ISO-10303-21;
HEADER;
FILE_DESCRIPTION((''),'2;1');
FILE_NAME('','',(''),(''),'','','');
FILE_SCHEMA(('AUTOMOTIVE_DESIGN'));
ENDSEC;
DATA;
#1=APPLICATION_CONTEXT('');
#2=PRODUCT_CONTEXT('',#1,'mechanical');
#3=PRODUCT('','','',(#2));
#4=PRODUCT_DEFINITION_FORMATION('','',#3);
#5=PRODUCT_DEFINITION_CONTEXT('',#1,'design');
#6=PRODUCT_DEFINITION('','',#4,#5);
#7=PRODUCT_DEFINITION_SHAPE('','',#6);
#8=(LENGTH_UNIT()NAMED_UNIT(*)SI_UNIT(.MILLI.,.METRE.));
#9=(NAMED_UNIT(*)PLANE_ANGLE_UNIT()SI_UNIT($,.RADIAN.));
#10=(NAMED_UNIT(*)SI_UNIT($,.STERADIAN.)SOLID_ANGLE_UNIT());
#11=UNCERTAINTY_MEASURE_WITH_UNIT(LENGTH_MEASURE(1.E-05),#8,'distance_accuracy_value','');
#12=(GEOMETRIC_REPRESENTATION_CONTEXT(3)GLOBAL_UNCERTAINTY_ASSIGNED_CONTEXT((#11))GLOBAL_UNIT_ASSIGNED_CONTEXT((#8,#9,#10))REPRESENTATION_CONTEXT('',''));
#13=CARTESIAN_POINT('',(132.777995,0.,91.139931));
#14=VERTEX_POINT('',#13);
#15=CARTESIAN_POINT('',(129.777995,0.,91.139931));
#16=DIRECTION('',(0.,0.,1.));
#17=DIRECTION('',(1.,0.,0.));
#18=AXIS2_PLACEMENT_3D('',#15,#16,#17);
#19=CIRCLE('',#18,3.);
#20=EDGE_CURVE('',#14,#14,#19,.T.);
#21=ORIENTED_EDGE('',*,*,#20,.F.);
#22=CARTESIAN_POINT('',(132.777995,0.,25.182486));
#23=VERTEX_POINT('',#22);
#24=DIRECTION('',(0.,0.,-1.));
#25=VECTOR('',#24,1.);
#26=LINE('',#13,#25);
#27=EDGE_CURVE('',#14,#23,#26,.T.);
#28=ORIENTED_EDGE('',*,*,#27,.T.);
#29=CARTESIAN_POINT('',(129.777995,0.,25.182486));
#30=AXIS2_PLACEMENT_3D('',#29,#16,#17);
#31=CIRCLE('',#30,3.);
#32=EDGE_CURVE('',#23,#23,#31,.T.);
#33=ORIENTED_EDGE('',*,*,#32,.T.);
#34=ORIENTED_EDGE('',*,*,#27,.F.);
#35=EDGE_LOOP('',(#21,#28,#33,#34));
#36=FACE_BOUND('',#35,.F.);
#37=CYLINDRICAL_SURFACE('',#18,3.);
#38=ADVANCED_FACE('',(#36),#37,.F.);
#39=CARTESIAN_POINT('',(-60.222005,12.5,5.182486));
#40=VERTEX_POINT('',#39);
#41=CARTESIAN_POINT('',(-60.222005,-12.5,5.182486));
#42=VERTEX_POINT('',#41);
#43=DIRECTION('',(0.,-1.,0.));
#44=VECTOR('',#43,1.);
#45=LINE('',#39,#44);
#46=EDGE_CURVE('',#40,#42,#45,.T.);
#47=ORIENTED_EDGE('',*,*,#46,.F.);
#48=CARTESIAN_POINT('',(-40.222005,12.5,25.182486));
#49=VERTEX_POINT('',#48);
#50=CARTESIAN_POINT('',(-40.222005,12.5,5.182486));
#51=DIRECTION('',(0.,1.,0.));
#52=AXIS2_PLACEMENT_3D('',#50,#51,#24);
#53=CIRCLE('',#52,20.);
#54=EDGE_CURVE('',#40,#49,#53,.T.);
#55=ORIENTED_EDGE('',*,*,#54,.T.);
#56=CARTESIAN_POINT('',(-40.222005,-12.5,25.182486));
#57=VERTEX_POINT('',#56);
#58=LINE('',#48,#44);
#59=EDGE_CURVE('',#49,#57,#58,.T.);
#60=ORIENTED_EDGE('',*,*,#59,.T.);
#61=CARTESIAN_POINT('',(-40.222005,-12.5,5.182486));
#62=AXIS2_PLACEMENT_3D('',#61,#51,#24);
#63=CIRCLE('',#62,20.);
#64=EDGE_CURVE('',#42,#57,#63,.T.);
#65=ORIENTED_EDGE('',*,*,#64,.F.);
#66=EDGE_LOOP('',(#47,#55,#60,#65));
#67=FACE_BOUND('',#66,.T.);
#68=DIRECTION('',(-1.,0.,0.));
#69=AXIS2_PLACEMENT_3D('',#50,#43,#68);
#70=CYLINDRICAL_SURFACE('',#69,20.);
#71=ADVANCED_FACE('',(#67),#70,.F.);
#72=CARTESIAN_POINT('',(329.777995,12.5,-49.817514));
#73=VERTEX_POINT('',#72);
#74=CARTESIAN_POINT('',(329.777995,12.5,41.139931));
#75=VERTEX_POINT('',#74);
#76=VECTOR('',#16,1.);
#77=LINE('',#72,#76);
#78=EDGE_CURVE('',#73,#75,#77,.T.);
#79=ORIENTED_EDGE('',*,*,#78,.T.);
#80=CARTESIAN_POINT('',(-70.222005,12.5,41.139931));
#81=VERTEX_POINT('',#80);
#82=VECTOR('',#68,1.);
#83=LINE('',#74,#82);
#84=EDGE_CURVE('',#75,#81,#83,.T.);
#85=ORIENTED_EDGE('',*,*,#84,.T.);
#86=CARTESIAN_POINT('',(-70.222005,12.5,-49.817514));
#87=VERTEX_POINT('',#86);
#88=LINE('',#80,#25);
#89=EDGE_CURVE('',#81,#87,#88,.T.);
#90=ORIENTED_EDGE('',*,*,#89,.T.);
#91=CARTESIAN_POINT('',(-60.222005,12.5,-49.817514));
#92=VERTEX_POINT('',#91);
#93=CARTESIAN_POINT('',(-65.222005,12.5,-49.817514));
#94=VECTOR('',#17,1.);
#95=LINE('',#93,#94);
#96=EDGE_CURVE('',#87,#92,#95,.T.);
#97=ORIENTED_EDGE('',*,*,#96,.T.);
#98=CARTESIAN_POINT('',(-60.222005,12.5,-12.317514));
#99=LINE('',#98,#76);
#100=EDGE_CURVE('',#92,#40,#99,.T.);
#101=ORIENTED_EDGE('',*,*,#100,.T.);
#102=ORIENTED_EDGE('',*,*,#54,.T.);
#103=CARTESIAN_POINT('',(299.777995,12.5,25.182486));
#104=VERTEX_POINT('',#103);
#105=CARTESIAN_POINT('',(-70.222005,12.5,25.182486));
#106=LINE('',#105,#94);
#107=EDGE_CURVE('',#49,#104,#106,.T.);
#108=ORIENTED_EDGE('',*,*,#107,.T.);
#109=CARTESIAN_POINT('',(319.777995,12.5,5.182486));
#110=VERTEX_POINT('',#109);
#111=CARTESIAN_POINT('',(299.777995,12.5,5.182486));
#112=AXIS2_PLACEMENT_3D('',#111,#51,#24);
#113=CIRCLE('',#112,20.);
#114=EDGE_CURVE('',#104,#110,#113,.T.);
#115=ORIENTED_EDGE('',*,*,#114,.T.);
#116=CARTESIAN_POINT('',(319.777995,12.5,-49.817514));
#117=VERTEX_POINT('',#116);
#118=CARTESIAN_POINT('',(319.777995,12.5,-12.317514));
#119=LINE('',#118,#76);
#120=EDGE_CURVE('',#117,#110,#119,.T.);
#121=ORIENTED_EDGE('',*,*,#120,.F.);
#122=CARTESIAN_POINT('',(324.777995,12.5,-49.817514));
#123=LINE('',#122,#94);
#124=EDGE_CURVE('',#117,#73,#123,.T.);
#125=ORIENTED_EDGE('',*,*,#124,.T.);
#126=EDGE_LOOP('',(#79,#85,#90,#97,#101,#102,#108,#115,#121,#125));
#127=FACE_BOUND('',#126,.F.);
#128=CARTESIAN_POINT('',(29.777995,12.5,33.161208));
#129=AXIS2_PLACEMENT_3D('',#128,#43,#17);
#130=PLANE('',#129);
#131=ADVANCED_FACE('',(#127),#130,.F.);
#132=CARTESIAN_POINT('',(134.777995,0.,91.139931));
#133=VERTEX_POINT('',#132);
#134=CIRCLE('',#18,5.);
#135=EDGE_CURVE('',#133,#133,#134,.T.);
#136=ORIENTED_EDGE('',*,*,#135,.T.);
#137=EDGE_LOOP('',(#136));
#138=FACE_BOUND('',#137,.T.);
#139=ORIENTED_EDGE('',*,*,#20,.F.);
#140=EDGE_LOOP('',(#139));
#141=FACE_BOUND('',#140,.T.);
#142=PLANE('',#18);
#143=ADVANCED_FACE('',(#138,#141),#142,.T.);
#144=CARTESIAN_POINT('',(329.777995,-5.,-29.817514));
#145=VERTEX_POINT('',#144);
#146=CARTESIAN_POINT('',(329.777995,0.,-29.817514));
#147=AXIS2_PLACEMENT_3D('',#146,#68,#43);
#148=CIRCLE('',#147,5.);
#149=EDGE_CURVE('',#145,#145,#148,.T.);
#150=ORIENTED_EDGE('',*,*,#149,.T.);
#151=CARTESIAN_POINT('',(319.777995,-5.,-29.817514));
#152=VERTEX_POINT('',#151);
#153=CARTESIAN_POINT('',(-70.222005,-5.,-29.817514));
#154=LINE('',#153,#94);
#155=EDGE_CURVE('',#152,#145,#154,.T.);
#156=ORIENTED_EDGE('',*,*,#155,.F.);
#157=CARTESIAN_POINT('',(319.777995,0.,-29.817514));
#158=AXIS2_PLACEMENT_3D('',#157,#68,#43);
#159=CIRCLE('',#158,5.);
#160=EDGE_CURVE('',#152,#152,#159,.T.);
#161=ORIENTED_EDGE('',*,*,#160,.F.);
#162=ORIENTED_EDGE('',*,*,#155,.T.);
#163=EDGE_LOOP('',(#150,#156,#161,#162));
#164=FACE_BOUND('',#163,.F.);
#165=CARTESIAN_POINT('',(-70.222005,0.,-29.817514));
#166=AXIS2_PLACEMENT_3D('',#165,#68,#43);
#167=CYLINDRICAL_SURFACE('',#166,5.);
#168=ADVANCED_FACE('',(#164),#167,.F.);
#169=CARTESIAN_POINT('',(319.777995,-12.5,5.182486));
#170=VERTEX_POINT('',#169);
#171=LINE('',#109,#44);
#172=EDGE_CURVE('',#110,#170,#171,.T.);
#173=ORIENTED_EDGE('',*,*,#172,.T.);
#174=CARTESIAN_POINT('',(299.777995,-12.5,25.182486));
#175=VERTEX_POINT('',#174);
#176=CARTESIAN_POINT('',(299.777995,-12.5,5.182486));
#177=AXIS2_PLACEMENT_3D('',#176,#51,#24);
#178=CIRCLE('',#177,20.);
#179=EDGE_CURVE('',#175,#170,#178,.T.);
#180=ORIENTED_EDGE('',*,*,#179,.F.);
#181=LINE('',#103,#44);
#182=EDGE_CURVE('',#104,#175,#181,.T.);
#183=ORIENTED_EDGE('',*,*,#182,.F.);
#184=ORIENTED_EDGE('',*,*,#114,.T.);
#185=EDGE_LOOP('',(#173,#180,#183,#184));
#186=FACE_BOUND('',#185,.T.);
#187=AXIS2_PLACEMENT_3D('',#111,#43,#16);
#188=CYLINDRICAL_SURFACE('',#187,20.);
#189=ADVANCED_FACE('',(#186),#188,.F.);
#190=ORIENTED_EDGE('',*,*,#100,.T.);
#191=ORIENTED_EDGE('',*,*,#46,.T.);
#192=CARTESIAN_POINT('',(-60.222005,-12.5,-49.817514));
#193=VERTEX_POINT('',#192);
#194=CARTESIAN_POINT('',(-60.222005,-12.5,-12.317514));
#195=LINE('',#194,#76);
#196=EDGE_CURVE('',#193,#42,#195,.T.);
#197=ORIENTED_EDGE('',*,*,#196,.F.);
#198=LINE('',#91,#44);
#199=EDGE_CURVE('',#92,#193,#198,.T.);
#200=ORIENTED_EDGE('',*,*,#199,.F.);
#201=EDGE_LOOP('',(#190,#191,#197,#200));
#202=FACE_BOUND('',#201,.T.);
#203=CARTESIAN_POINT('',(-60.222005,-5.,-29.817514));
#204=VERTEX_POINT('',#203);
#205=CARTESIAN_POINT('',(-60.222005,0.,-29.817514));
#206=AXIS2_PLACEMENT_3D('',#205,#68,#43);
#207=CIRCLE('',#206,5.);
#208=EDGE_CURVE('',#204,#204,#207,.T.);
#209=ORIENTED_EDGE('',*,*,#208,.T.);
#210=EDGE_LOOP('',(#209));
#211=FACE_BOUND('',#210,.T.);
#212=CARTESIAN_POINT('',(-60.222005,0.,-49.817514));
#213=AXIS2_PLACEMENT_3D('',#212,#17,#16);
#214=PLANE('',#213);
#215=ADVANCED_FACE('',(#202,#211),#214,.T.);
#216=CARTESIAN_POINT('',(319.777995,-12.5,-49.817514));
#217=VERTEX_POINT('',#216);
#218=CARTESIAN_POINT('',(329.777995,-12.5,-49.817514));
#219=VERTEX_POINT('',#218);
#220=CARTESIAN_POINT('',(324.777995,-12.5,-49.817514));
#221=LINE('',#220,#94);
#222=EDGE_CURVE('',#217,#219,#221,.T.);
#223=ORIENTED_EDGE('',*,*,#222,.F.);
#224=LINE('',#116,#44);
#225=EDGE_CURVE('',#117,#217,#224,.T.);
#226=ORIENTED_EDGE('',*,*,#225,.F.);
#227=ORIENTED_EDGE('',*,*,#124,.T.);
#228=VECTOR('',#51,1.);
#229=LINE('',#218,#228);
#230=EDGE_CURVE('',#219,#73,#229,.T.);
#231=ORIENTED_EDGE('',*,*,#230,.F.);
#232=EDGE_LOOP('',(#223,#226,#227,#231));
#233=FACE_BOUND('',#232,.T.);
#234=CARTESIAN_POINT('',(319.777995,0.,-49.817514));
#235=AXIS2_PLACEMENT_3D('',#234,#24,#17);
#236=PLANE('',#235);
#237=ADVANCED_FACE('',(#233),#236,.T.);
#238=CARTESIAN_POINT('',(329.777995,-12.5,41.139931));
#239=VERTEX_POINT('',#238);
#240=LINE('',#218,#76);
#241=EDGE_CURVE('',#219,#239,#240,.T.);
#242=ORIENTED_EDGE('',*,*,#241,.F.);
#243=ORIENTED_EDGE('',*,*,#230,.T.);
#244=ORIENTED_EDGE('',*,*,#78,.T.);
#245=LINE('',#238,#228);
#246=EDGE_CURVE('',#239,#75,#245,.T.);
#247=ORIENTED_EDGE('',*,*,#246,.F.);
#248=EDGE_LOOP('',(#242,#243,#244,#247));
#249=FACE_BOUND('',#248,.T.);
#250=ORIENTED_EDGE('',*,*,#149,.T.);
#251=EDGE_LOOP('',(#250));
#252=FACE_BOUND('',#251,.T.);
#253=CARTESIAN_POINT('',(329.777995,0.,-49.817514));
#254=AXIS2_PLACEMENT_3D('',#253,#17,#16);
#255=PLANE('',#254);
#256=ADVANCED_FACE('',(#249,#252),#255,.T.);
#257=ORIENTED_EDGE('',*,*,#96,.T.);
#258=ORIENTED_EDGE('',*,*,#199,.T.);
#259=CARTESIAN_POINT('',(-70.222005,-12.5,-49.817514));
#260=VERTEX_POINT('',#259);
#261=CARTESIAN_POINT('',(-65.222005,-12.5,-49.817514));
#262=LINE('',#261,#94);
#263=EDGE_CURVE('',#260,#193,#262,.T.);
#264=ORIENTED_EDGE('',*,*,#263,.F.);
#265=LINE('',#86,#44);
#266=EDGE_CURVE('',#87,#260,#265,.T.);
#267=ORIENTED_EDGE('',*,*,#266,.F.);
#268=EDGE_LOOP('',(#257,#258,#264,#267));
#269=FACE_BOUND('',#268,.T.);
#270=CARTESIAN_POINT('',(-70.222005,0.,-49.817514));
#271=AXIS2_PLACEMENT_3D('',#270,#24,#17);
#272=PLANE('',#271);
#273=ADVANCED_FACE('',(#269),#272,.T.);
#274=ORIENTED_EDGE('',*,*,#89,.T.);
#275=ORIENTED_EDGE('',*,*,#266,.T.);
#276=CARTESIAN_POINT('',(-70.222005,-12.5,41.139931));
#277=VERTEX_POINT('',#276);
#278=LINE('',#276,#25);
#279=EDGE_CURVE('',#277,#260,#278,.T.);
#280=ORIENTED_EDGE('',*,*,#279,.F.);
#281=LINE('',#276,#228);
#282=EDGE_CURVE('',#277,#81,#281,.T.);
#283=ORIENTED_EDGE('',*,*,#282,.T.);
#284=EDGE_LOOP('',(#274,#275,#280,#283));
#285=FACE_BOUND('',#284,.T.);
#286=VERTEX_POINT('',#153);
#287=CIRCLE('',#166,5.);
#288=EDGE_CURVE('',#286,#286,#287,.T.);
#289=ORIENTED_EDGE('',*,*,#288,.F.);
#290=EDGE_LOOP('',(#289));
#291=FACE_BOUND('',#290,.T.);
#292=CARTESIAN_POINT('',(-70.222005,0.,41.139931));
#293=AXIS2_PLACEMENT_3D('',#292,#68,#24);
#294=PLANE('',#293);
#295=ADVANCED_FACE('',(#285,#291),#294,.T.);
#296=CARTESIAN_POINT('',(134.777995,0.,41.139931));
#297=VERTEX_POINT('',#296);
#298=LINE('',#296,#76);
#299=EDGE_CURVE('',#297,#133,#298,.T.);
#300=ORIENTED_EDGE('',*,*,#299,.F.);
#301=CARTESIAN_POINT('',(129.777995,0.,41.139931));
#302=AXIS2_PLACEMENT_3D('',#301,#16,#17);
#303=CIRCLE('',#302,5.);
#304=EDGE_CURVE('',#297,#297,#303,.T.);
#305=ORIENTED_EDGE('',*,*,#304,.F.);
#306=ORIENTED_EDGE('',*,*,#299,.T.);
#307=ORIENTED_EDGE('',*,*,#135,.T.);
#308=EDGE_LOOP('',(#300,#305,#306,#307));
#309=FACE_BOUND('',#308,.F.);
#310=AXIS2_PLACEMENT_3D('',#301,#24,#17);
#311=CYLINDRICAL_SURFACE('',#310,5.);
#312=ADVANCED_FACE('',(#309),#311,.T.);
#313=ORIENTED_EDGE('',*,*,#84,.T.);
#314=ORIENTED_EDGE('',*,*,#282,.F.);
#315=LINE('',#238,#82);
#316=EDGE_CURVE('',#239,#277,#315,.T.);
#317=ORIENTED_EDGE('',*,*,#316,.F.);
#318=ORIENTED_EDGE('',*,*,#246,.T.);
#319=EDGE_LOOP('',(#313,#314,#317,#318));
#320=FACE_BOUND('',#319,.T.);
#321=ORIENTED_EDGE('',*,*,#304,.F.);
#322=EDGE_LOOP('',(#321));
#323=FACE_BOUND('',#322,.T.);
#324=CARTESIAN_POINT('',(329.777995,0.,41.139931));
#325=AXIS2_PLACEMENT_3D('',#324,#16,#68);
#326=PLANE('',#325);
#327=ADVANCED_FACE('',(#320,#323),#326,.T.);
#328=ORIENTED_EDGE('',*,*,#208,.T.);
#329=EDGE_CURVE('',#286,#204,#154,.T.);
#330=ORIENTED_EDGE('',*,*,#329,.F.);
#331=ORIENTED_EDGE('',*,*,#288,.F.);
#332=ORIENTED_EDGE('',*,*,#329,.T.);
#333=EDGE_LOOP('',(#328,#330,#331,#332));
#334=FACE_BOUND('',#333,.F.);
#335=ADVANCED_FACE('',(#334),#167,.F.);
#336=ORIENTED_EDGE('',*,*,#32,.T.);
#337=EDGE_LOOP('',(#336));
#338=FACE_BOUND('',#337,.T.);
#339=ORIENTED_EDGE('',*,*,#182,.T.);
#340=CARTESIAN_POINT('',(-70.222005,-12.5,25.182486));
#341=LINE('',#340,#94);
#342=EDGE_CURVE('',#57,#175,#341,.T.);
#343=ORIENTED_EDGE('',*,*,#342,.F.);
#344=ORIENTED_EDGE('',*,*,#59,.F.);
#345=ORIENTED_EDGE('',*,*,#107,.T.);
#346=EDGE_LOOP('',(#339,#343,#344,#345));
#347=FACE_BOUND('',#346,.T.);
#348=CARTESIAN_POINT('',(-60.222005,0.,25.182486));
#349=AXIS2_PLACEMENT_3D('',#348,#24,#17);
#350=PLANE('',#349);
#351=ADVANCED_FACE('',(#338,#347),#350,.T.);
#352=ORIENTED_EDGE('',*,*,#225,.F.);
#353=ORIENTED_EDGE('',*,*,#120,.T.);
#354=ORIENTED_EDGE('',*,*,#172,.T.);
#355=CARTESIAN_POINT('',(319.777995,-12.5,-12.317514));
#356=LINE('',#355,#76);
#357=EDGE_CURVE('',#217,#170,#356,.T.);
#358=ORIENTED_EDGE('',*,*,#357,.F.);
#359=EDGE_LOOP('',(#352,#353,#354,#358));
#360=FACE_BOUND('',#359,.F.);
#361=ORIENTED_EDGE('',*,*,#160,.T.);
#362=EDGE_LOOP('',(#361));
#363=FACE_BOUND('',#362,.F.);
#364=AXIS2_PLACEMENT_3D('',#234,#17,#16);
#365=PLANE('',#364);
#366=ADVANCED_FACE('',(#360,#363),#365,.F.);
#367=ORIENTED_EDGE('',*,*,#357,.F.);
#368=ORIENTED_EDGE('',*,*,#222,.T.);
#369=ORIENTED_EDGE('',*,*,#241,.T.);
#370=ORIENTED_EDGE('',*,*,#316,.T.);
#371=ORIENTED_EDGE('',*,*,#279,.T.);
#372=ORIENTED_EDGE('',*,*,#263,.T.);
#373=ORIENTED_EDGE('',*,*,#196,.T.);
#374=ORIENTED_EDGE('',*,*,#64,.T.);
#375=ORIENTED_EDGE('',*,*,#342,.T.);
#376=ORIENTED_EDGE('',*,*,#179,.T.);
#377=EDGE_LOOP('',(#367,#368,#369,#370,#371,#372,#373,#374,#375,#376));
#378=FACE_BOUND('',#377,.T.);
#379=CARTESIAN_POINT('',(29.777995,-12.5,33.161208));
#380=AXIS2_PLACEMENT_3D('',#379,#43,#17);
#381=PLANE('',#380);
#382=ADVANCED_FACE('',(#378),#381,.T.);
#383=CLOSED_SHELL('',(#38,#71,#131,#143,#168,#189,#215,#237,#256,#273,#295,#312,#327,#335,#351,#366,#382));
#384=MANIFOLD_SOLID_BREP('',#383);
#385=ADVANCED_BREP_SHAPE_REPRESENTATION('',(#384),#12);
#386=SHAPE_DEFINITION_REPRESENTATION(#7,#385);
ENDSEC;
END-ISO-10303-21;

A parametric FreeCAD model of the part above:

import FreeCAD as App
import Part
import Sketcher
from FreeCAD import Vector
Q = App.Units.Quantity


def edges_at(feature, points):
    """Names of the edges that pass closest to the given points."""
    edges = feature.Shape.Edges
    near = lambda p: min(range(len(edges)), key=lambda i: edges[i].distToShape(Part.Vertex(*p))[0])
    return sorted({f"Edge{near(p) + 1}" for p in points})

doc = App.newDocument("Part")
body = doc.addObject("PartDesign::Body", "Body")

# Sketch on XZ plane
sketch1 = body.newObject("Sketcher::SketchObject", "Sketch")
sketch1.AttachmentSupport = (doc.getObject("XZ_Plane"), [""])
sketch1.MapMode = "FlatFace"
sketch1.addGeometry(Part.LineSegment(Vector(-70.222005, 41.139931, 0), Vector(-70.222005, -49.817514, 0)), False)
sketch1.addGeometry(Part.LineSegment(Vector(-70.222005, -49.817514, 0), Vector(-60.222005, -49.817514, 0)), False)
sketch1.addGeometry(Part.LineSegment(Vector(-60.222005, -49.817514, 0), Vector(-60.222005, 25.182486, 0)), False)
sketch1.addGeometry(Part.LineSegment(Vector(-60.222005, 25.182486, 0), Vector(319.777995, 25.182486, 0)), False)
sketch1.addGeometry(Part.LineSegment(Vector(319.777995, 25.182486, 0), Vector(319.777995, -49.817514, 0)), False)
sketch1.addGeometry(Part.LineSegment(Vector(319.777995, -49.817514, 0), Vector(329.777995, -49.817514, 0)), False)
sketch1.addGeometry(Part.LineSegment(Vector(329.777995, -49.817514, 0), Vector(329.777995, 41.139931, 0)), False)
sketch1.addGeometry(Part.LineSegment(Vector(329.777995, 41.139931, 0), Vector(-70.222005, 41.139931, 0)), False)
sketch1.addConstraint(Sketcher.Constraint("Coincident", 0, 2, 1, 1))
sketch1.addConstraint(Sketcher.Constraint("Coincident", 1, 2, 2, 1))
sketch1.addConstraint(Sketcher.Constraint("Coincident", 2, 2, 3, 1))
sketch1.addConstraint(Sketcher.Constraint("Coincident", 3, 2, 4, 1))
sketch1.addConstraint(Sketcher.Constraint("Coincident", 4, 2, 5, 1))
sketch1.addConstraint(Sketcher.Constraint("Coincident", 5, 2, 6, 1))
sketch1.addConstraint(Sketcher.Constraint("Coincident", 6, 2, 7, 1))
sketch1.addConstraint(Sketcher.Constraint("Coincident", 7, 2, 0, 1))
sketch1.addConstraint(Sketcher.Constraint("Vertical", 0))
sketch1.addConstraint(Sketcher.Constraint("Horizontal", 1))
sketch1.addConstraint(Sketcher.Constraint("Vertical", 2))
sketch1.addConstraint(Sketcher.Constraint("Horizontal", 3))
sketch1.addConstraint(Sketcher.Constraint("Vertical", 4))
sketch1.addConstraint(Sketcher.Constraint("Horizontal", 5))
sketch1.addConstraint(Sketcher.Constraint("Vertical", 6))
sketch1.addConstraint(Sketcher.Constraint("Horizontal", 7))
sketch1.addConstraint(Sketcher.Constraint("Horizontal", 1, 2, 4, 2))
sketch1.addConstraint(Sketcher.Constraint("Equal", 1, 5))
sketch1.addConstraint(Sketcher.Constraint("DistanceX", 1, 1, 1, 2, Q("10 mm")))
sketch1.addConstraint(Sketcher.Constraint("DistanceX", 3, 1, 3, 2, Q("380 mm")))
sketch1.addConstraint(Sketcher.Constraint("DistanceY", 2, 1, 2, 2, Q("75 mm")))
sketch1.addConstraint(Sketcher.Constraint("DistanceY", 0, 2, 0, 1, Q("90.957444 mm")))
sketch1.addConstraint(Sketcher.Constraint("DistanceY", -1, 1, 6, 2, Q("41.139931 mm")))
sketch1.addConstraint(Sketcher.Constraint("DistanceX", 0, 2, -1, 1, Q("70.222005 mm")))
pad1 = body.newObject("PartDesign::Pad", "Pad")
pad1.Profile = sketch1
pad1.Length = 25
pad1.Midplane = True

# Sketch on YZ plane
sketch2 = body.newObject("Sketcher::SketchObject", "Sketch001")
sketch2.AttachmentSupport = (doc.getObject("YZ_Plane"), [""])
sketch2.MapMode = "FlatFace"
sketch2.AttachmentOffset = App.Placement(Vector(0, 0, -70.222005), App.Rotation())
sketch2.addGeometry(Part.Circle(Vector(0, -29.817514, 0), Vector(0, 0, 1), 5), False)
sketch2.addConstraint(Sketcher.Constraint("PointOnObject", 0, 3, -2))
sketch2.addConstraint(Sketcher.Constraint("Diameter", 0, Q("10 mm")))
sketch2.addConstraint(Sketcher.Constraint("DistanceY", 0, 3, -1, 1, Q("29.817514 mm")))
pocket1 = body.newObject("PartDesign::Pocket", "Pocket")
pocket1.Profile = sketch2
pocket1.Type = "ThroughAll"
pocket1.Reversed = True

# Sketch on XY plane
sketch3 = body.newObject("Sketcher::SketchObject", "Sketch002")
sketch3.AttachmentSupport = (doc.getObject("XY_Plane"), [""])
sketch3.MapMode = "FlatFace"
sketch3.AttachmentOffset = App.Placement(Vector(0, 0, 41.139931), App.Rotation())
sketch3.addGeometry(Part.Circle(Vector(129.777995, 0, 0), Vector(0, 0, 1), 5), False)
sketch3.addConstraint(Sketcher.Constraint("PointOnObject", 0, 3, -1))
sketch3.addConstraint(Sketcher.Constraint("Diameter", 0, Q("10 mm")))
sketch3.addConstraint(Sketcher.Constraint("DistanceX", -1, 1, 0, 3, Q("129.777995 mm")))
pad2 = body.newObject("PartDesign::Pad", "Pad001")
pad2.Profile = sketch3
pad2.Length = 50
doc.recompute()

fillet = body.newObject("PartDesign::Fillet", "Fillet")
fillet.Base = (pad2, edges_at(pad2, [(-60.222, 0, 25.182), (319.778, 0, 25.182)]))
fillet.Radius = 20

# Sketch on XY plane
sketch4 = body.newObject("Sketcher::SketchObject", "Sketch003")
sketch4.AttachmentSupport = (doc.getObject("XY_Plane"), [""])
sketch4.MapMode = "FlatFace"
sketch4.AttachmentOffset = App.Placement(Vector(0, 0, 91.139931), App.Rotation())
sketch4.addGeometry(Part.Circle(Vector(129.777995, 0, 0), Vector(0, 0, 1), 3), False)
sketch4.addConstraint(Sketcher.Constraint("PointOnObject", 0, 3, -1))
sketch4.addConstraint(Sketcher.Constraint("Diameter", 0, Q("6 mm")))
sketch4.addConstraint(Sketcher.Constraint("DistanceX", -1, 1, 0, 3, Q("129.777995 mm")))
pocket2 = body.newObject("PartDesign::Pocket", "Pocket001")
pocket2.Profile = sketch4
pocket2.Type = "ThroughAll"

doc.recompute()
